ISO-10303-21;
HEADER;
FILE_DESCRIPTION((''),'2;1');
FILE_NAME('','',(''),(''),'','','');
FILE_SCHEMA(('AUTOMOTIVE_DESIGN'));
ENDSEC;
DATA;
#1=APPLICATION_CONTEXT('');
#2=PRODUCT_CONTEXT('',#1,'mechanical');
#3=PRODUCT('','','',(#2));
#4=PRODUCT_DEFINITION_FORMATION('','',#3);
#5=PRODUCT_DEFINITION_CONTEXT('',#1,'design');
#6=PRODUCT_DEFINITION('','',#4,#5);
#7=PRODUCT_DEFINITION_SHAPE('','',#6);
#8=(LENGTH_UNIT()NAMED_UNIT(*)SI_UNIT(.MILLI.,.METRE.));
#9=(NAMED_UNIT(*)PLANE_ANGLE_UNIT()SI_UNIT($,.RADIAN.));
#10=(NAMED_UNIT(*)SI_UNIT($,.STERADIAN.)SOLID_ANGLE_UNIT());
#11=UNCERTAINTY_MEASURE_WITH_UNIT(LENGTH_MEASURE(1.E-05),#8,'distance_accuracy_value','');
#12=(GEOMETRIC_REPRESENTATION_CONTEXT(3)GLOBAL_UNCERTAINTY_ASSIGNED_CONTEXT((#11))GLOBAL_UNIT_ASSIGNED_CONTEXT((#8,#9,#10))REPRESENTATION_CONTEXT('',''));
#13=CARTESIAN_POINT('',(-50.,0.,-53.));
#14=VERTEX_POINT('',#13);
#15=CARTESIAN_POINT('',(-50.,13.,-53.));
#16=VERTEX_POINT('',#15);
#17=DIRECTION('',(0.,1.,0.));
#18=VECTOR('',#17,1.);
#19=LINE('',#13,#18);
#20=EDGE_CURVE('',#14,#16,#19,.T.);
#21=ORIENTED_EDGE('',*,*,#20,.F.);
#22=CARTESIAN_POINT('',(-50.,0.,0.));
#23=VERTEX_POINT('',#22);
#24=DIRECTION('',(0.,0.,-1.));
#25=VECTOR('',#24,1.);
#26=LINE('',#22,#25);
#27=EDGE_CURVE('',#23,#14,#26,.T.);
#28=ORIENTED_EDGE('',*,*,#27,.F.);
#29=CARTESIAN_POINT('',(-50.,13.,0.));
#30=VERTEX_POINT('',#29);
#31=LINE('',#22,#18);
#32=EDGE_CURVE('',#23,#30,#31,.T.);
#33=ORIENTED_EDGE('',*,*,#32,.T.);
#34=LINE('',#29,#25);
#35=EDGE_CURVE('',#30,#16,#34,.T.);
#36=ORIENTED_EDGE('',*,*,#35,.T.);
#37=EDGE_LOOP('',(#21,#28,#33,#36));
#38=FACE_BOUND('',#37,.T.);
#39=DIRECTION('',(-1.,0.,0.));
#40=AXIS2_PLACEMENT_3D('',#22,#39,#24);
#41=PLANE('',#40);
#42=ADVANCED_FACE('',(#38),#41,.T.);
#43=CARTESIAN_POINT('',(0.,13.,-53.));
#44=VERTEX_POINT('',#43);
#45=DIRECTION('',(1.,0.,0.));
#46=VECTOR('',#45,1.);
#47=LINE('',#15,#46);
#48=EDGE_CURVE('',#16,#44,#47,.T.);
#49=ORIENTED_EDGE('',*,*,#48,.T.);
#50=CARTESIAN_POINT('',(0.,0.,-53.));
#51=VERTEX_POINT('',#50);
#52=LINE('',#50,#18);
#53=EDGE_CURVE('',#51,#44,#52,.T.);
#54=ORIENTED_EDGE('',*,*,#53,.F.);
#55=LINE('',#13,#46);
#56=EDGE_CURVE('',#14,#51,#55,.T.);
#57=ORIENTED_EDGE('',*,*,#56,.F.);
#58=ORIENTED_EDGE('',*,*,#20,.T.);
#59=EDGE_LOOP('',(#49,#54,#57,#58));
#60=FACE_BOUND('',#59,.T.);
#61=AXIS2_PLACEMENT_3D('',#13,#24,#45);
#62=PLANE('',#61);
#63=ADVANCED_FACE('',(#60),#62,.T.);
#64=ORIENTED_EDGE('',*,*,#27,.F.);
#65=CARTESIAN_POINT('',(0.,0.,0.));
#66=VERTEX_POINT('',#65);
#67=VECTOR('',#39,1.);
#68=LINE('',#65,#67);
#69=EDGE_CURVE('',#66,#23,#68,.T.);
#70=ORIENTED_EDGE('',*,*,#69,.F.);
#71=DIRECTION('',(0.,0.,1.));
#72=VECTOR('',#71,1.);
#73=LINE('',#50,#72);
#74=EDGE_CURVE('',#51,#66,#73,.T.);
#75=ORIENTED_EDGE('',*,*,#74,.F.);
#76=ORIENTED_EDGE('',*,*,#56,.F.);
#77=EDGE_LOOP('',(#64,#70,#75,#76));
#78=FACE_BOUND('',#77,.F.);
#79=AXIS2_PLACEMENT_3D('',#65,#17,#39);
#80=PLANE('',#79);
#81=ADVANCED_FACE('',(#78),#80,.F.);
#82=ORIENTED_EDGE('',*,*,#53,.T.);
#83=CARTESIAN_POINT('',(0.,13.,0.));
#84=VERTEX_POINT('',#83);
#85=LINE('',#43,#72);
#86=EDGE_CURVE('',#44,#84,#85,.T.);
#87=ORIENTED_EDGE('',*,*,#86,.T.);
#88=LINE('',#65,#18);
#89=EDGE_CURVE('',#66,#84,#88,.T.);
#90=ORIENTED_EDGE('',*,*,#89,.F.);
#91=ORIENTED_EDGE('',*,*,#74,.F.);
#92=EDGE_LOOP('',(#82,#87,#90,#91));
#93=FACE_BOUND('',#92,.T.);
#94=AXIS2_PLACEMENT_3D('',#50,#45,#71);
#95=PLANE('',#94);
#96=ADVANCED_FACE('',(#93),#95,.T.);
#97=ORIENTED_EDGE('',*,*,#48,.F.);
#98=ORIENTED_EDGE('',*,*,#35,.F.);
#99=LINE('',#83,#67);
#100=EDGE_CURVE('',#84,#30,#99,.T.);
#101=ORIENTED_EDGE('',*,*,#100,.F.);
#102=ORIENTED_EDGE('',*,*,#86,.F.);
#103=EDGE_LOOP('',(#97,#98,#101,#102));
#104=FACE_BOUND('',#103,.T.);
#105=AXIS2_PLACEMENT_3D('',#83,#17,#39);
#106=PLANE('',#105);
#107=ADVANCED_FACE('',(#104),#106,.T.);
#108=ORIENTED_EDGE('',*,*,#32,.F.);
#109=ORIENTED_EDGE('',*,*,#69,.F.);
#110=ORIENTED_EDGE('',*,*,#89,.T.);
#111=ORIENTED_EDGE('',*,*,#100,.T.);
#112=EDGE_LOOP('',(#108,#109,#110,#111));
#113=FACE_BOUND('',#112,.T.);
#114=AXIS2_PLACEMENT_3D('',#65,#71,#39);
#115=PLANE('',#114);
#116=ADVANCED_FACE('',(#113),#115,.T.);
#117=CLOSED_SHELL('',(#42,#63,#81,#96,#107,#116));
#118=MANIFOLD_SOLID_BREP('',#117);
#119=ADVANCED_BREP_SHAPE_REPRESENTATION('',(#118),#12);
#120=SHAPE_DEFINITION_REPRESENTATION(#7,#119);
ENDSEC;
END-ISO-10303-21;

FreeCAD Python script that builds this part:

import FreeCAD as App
import Part
import Sketcher

V = App.Vector
Q = App.Units.Quantity

doc = App.newDocument("Part")
body = doc.addObject("PartDesign::Body", "Body")

# Sketch on XZ plane
sketch1 = body.newObject("Sketcher::SketchObject", "Sketch")
sketch1.AttachmentSupport = (doc.getObject("XZ_Plane"), [""])
sketch1.MapMode = "FlatFace"
sketch1.addGeometry(Part.LineSegment(V(-50, 0, 0), V(0, 0, 0)), False)
sketch1.addGeometry(Part.LineSegment(V(0, 0, 0), V(0, -53, 0)), False)
sketch1.addGeometry(Part.LineSegment(V(0, -53, 0), V(-50, -53, 0)), False)
sketch1.addGeometry(Part.LineSegment(V(-50, -53, 0), V(-50, 0, 0)), False)
sketch1.addConstraint(Sketcher.Constraint("Coincident", 0, 2, 1, 1))
sketch1.addConstraint(Sketcher.Constraint("Coincident", 1, 2, 2, 1))
sketch1.addConstraint(Sketcher.Constraint("Coincident", 2, 2, 3, 1))
sketch1.addConstraint(Sketcher.Constraint("Coincident", 3, 2, 0, 1))
sketch1.addConstraint(Sketcher.Constraint("Horizontal", 0))
sketch1.addConstraint(Sketcher.Constraint("Vertical", 1))
sketch1.addConstraint(Sketcher.Constraint("Horizontal", 2))
sketch1.addConstraint(Sketcher.Constraint("Vertical", 3))
sketch1.addConstraint(Sketcher.Constraint("Coincident", 0, 2, -1, 1))
sketch1.addConstraint(Sketcher.Constraint("DistanceX", 0, 1, 0, 2, Q("50 mm")))
sketch1.addConstraint(Sketcher.Constraint("DistanceY", 1, 2, 1, 1, Q("53 mm")))
pad1 = body.newObject("PartDesign::Pad", "Pad")
pad1.Profile = sketch1
pad1.Length = 13
pad1.Reversed = True

doc.recompute()
